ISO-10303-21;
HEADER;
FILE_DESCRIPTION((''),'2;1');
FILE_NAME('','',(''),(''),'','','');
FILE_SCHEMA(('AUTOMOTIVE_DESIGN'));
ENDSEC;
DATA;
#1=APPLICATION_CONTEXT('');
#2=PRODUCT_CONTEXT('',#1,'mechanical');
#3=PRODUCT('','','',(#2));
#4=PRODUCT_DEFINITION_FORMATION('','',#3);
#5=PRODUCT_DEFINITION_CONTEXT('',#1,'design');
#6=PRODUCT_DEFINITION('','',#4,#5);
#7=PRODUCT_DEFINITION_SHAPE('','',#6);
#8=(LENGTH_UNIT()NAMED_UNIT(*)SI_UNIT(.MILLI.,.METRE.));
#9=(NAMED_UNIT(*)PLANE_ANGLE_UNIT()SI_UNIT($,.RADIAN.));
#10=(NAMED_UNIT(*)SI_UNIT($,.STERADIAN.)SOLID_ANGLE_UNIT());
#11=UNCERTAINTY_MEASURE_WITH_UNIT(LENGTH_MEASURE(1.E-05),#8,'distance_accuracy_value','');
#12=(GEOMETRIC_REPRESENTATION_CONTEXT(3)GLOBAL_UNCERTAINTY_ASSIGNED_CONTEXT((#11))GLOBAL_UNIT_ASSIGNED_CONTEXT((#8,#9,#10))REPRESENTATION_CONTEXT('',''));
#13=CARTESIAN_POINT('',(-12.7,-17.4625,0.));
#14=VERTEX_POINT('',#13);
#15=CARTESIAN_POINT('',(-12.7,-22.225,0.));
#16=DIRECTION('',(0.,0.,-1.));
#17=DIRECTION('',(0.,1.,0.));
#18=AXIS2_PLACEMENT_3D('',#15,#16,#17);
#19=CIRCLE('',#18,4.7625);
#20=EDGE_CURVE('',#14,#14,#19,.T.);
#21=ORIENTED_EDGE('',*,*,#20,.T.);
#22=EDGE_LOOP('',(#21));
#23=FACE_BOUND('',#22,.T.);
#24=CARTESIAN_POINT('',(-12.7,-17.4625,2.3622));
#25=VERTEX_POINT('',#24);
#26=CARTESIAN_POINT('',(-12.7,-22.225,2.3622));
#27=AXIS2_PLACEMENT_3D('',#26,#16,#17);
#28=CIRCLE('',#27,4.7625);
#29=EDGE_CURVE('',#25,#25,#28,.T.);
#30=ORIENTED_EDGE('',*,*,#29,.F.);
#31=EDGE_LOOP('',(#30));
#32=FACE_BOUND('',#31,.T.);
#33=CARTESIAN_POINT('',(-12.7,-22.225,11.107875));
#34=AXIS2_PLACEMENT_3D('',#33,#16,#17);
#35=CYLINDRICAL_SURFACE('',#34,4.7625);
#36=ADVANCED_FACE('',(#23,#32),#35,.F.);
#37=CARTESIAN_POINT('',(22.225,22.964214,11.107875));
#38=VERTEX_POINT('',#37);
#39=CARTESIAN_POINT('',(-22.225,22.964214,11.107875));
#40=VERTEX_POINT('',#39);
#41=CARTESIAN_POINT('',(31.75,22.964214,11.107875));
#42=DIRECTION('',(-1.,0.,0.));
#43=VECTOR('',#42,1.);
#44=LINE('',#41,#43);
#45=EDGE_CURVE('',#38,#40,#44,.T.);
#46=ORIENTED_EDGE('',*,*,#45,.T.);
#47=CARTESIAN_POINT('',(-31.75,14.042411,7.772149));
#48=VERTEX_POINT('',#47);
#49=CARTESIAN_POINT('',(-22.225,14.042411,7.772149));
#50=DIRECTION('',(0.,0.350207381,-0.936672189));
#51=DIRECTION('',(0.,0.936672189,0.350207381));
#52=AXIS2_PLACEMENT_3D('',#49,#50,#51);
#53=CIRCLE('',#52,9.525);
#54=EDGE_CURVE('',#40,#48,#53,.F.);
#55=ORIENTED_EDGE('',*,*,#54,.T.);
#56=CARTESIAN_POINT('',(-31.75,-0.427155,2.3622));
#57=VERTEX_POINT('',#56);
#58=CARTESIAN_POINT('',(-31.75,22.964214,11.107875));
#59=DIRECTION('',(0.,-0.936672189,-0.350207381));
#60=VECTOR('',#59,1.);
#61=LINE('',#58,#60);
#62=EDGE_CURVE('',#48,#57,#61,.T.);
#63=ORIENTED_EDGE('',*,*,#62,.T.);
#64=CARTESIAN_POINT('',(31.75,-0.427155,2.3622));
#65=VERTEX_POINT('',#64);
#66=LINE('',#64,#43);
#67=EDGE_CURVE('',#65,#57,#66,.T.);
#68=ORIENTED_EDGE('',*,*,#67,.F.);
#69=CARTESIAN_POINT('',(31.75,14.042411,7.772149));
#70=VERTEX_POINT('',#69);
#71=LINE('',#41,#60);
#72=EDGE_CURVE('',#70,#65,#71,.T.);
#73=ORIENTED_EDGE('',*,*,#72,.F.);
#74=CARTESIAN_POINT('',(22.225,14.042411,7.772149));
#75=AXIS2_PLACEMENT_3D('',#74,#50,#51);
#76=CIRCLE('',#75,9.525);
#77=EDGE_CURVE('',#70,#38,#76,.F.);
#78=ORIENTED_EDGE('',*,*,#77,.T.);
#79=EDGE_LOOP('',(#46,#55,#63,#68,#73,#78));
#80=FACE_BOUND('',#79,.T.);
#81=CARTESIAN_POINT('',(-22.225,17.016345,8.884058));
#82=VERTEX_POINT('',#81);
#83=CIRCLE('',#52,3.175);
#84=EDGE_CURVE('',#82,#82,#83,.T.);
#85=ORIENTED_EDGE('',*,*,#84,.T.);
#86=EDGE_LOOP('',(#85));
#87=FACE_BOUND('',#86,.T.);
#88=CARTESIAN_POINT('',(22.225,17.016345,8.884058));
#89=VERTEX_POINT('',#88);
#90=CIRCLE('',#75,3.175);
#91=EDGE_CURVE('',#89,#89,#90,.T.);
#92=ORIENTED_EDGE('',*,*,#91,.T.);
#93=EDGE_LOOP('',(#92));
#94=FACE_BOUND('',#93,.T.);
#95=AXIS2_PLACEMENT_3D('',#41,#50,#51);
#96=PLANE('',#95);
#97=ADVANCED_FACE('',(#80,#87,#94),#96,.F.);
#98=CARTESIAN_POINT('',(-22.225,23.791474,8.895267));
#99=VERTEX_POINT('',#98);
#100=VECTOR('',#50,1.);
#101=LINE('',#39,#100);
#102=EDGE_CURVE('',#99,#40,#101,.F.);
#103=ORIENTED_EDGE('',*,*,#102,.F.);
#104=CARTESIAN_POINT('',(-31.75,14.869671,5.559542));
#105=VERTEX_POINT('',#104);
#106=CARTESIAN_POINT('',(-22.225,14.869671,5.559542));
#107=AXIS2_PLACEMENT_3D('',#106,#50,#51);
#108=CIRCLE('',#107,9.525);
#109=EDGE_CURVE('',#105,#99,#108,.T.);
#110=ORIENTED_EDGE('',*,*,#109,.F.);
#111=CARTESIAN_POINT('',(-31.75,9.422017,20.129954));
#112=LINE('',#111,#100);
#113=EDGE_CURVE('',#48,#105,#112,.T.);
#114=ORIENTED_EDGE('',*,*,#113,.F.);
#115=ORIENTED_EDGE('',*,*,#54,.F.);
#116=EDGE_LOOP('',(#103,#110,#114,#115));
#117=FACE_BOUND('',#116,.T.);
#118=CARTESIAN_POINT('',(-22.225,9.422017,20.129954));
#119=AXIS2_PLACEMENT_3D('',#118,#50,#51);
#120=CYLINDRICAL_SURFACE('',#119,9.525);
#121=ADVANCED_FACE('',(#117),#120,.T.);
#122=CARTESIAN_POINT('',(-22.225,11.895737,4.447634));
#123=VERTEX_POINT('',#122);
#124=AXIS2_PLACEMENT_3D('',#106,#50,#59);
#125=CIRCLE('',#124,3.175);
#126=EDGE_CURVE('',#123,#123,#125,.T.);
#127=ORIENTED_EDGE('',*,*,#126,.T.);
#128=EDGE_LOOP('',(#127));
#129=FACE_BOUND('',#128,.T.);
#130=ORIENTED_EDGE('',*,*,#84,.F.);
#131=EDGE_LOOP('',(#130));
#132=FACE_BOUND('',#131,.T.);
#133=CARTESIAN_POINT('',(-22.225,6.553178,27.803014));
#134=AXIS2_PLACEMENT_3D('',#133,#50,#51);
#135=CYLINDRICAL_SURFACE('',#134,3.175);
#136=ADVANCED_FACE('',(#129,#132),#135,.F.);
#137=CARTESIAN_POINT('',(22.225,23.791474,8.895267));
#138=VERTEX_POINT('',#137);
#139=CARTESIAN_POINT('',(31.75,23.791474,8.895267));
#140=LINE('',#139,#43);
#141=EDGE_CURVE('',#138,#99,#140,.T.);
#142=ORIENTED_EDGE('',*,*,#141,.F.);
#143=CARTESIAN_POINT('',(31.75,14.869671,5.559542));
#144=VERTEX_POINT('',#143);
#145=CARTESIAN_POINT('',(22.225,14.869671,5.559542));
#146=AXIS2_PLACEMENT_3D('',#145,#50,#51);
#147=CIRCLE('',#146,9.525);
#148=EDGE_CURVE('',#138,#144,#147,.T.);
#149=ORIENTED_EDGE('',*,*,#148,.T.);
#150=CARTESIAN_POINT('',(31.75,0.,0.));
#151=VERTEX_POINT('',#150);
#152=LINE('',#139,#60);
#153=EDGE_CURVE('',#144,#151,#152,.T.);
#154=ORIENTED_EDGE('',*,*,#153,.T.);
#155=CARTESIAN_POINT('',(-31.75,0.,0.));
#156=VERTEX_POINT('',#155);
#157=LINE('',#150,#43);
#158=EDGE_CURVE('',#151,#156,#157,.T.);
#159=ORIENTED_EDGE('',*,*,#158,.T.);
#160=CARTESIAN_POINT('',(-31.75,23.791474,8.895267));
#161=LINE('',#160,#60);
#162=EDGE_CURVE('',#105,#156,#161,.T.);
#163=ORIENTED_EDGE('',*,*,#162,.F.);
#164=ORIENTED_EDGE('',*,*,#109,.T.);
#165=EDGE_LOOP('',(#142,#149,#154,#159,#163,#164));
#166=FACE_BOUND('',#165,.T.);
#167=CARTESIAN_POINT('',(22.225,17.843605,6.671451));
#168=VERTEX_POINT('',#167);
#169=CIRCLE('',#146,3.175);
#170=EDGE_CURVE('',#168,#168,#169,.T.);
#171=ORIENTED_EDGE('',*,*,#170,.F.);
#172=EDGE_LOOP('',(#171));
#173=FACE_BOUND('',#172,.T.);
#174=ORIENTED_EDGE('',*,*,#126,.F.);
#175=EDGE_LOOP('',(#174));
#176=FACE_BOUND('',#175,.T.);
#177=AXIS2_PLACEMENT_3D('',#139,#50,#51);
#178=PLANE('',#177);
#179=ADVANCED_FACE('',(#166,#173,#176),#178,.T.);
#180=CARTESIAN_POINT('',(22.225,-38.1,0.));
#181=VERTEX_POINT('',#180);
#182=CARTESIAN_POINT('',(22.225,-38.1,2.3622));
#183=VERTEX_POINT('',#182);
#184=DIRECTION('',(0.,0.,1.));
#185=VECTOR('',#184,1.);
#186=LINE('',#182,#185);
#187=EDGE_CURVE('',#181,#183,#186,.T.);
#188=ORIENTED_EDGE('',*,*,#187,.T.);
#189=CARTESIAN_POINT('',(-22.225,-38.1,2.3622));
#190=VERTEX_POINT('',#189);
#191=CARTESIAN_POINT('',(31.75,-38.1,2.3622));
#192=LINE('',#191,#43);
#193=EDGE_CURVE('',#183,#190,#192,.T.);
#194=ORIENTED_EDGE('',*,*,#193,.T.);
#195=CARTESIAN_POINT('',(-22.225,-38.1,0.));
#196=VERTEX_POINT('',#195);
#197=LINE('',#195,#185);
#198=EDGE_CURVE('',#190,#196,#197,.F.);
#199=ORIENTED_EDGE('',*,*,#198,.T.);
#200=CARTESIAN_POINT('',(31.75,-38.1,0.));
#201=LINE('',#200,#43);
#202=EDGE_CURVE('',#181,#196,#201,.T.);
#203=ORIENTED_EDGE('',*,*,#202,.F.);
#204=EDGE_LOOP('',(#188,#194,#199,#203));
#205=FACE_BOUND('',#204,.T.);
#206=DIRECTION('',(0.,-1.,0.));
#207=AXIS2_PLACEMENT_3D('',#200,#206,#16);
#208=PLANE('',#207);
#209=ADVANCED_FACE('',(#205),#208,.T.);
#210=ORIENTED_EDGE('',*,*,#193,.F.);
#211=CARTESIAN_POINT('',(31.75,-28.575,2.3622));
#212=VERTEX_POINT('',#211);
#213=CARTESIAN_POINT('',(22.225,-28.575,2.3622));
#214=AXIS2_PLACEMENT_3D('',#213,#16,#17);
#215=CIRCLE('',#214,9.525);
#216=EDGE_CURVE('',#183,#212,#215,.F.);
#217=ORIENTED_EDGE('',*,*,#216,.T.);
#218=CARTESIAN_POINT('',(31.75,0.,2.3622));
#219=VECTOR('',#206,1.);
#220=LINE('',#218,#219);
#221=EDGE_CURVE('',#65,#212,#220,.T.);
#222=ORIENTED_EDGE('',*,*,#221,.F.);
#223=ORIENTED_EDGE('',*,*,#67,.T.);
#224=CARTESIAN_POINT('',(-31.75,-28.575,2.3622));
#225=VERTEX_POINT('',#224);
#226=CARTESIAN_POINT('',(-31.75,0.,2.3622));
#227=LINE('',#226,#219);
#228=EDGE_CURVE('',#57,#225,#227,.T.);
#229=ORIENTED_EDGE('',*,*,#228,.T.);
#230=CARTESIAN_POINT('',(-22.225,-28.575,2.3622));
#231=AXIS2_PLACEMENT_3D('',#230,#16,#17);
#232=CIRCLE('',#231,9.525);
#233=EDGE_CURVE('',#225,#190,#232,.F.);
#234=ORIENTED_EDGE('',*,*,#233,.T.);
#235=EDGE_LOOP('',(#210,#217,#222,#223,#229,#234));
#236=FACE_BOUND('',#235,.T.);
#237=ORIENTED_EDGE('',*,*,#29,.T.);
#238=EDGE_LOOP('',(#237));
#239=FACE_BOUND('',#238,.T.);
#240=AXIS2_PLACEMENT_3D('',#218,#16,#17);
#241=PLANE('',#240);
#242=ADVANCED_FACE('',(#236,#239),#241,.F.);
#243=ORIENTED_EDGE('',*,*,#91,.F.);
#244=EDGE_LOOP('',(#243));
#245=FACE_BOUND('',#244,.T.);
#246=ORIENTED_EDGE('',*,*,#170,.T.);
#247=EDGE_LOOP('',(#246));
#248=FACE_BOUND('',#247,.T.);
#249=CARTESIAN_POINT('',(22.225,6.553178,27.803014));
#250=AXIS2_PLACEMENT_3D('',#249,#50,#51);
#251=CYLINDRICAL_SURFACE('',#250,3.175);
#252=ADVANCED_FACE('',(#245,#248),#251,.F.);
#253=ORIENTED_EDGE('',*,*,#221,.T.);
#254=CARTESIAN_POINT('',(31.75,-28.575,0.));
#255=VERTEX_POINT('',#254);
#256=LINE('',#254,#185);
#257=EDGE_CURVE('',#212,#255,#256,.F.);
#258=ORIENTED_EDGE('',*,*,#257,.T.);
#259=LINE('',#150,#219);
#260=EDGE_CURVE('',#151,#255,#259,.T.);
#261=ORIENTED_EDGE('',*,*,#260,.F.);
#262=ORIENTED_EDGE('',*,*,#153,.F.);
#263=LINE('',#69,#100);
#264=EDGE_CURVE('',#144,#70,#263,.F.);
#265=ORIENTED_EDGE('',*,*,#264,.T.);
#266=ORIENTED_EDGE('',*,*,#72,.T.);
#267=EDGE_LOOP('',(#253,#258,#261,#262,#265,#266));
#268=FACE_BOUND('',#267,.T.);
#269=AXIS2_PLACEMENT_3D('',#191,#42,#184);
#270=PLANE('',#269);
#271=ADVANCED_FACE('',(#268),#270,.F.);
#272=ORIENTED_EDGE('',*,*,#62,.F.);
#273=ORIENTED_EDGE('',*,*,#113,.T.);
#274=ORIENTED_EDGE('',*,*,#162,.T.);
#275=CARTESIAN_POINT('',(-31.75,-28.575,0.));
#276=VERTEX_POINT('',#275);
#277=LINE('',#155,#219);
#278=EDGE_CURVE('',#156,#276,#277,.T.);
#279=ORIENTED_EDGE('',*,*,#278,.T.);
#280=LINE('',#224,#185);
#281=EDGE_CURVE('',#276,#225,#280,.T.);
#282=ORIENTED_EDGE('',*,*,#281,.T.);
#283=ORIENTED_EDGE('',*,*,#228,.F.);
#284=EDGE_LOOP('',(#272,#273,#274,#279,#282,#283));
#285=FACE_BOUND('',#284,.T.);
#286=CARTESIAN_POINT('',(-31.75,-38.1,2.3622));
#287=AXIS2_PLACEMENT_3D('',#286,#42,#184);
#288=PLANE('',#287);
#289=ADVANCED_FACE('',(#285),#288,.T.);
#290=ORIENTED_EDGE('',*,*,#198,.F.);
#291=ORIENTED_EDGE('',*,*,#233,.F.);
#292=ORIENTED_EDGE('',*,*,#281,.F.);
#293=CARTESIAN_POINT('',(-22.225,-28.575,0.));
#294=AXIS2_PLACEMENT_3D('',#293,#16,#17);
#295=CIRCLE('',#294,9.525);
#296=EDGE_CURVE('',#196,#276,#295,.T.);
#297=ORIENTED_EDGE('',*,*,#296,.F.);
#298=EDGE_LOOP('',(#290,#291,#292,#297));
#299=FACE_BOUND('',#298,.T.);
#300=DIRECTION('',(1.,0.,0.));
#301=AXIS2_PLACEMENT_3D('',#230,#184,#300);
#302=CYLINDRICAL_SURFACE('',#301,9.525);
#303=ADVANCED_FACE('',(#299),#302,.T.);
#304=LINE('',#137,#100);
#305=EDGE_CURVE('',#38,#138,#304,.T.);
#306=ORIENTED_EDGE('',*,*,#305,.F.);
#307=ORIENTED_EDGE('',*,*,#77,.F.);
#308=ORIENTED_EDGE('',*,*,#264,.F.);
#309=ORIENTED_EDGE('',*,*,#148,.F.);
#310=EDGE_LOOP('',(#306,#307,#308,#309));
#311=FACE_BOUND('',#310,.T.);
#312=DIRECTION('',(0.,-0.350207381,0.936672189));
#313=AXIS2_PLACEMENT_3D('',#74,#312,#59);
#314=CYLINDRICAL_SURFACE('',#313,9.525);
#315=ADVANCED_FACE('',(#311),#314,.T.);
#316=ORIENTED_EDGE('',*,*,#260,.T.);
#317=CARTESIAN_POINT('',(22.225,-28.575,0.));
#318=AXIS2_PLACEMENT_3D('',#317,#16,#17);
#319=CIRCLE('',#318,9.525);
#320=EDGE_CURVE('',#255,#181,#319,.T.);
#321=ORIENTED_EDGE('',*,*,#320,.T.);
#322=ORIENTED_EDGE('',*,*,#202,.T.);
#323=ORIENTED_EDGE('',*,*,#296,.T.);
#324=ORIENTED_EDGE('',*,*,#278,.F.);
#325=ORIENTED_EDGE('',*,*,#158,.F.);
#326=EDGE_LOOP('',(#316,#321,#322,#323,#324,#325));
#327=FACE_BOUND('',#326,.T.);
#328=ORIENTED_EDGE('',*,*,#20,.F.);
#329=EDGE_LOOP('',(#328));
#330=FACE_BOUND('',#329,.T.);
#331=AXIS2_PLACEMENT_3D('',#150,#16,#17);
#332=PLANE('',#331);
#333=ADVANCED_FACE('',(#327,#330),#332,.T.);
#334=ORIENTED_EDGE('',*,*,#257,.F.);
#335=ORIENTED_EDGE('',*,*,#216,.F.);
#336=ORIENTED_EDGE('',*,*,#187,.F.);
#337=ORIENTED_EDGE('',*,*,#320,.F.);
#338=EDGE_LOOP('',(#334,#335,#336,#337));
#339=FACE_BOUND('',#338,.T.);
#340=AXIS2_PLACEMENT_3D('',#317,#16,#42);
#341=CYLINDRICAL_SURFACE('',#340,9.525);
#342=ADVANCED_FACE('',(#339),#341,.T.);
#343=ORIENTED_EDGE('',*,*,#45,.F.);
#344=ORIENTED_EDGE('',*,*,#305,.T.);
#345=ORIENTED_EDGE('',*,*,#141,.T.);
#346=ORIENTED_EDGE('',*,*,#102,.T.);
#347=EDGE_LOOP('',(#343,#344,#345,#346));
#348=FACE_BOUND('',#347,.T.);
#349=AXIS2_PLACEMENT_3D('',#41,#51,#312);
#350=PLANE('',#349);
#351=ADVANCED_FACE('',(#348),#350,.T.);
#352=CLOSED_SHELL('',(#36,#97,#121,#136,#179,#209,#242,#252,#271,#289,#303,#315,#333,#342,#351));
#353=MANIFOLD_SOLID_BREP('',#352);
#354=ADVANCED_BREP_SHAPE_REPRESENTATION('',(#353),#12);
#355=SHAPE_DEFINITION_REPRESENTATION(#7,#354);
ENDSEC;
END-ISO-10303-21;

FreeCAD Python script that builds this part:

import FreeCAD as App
import Part
import Sketcher
from FreeCAD import Vector
Q = App.Units.Quantity


def edges_at(feature, points):
    """Names of the edges that pass closest to the given points."""
    edges = feature.Shape.Edges
    near = lambda p: min(range(len(edges)), key=lambda i: edges[i].distToShape(Part.Vertex(*p))[0])
    return sorted({f"Edge{near(p) + 1}" for p in points})

doc = App.newDocument("Part")
params = doc.addObject("Spreadsheet::Sheet", "Params")
for row, (alias, value) in enumerate([
    ("sketch1_length", "1 in"),
    ("sketch1_width", "1.5 in"),
    ("sketch1_height", "0.093 in"),
    ("sketch1_length2", "0.093 in"),
    ("pad1_length", "2.5 in"),
    ("sketch2_diameter", "0.375 in"),
    ("sketch3_diameter", "0.25 in"),
    ("fillet_radius", "0.375 in"),
], start=1):
    params.set(f"A{row}", alias)
    params.set(f"B{row}", "=" + value)
    params.setAlias(f"B{row}", alias)

body = doc.addObject("PartDesign::Body", "Body")

sketch1 = doc.addObject("Sketcher::SketchObject", "Sketch")
body.addObject(sketch1)
sketch1.AttachmentSupport = (doc.YZ_Plane, [""])
sketch1.MapMode = "FlatFace"
sketch1.addGeometry(Part.LineSegment(Vector(0, 0, 0), Vector(23.8, 8.9, 0)), False)
sketch1.addGeometry(Part.LineSegment(Vector(23.8, 8.9, 0), Vector(23, 11.1, 0)), False)
sketch1.addGeometry(Part.LineSegment(Vector(23, 11.1, 0), Vector(-0.4, 2.4, 0)), False)
sketch1.addGeometry(Part.LineSegment(Vector(-0.4, 2.4, 0), Vector(-38.1, 2.4, 0)), False)
sketch1.addGeometry(Part.LineSegment(Vector(-38.1, 2.4, 0), Vector(-38.1, 0, 0)), False)
sketch1.addGeometry(Part.LineSegment(Vector(-38.1, 0, 0), Vector(0, 0, 0)), False)
sketch1.addConstraint(Sketcher.Constraint("Coincident", 0, 2, 1, 1))
sketch1.addConstraint(Sketcher.Constraint("Coincident", 1, 2, 2, 1))
sketch1.addConstraint(Sketcher.Constraint("Coincident", 2, 2, 3, 1))
sketch1.addConstraint(Sketcher.Constraint("Coincident", 3, 2, 4, 1))
sketch1.addConstraint(Sketcher.Constraint("Coincident", 4, 2, 5, 1))
sketch1.addConstraint(Sketcher.Constraint("Coincident", 5, 2, 0, 1))
sketch1.addConstraint(Sketcher.Constraint("Horizontal", 3))
sketch1.addConstraint(Sketcher.Constraint("Vertical", 4))
sketch1.addConstraint(Sketcher.Constraint("Horizontal", 5))
sketch1.addConstraint(Sketcher.Constraint("Coincident", 5, 2, -1, 1))
sketch1.addConstraint(Sketcher.Constraint("Perpendicular", 0, 1))
sketch1.addConstraint(Sketcher.Constraint("Perpendicular", 1, 2))
sketch1.addConstraint(Sketcher.Constraint("Distance", 0, Q("1 in")))
sketch1.addConstraint(Sketcher.Constraint("DistanceX", 5, 1, 5, 2, Q("1.5 in")))
sketch1.addConstraint(Sketcher.Constraint("Angle", 0, Q("20.5 deg")))
sketch1.addConstraint(Sketcher.Constraint("DistanceY", 4, 2, 4, 1, Q("0.093 in")))
sketch1.addConstraint(Sketcher.Constraint("Distance", 1, Q("0.093 in")))
sketch1.setExpression("Constraints[12]", "Params.sketch1_length")
sketch1.setExpression("Constraints[13]", "Params.sketch1_width")
sketch1.setExpression("Constraints[15]", "Params.sketch1_height")
sketch1.setExpression("Constraints[16]", "Params.sketch1_length2")
pad1 = doc.addObject("PartDesign::Pad", "Pad")
body.addObject(pad1)
pad1.Profile = sketch1
pad1.setExpression("Length", "Params.pad1_length")
pad1.Midplane = True

sketch2 = doc.addObject("Sketcher::SketchObject", "Sketch001")
body.addObject(sketch2)
sketch2.AttachmentSupport = (doc.XY_Plane, [""])
sketch2.MapMode = "FlatFace"
sketch2.addGeometry(Part.Circle(Vector(-12.7, -22.2, 0), Vector(0, 0, 1), 4.8), False)
sketch2.addConstraint(Sketcher.Constraint("Diameter", 0, Q("0.375 in")))
sketch2.addConstraint(Sketcher.Constraint("DistanceX", 0, 3, -1, 1, Q("0.5 in")))
sketch2.addConstraint(Sketcher.Constraint("DistanceY", 0, 3, -1, 1, Q("0.875 in")))
sketch2.setExpression("Constraints[0]", "Params.sketch2_diameter")
pocket1 = doc.addObject("PartDesign::Pocket", "Pocket")
body.addObject(pocket1)
pocket1.Profile = sketch2
pocket1.Type = "ThroughAll"
pocket1.Reversed = True

sketch3 = doc.addObject("Sketcher::SketchObject", "Sketch002")
body.addObject(sketch3)
sketch3.Placement = App.Placement(Vector(0, 0, 0), App.Rotation(Vector(-1, 0, 0), Vector(0, 0.936672189, 0.350207381), Vector(0, 0.350207381, -0.936672189), "ZXY"))
sketch3.addGeometry(Part.Circle(Vector(-22.2, 15.9, 0), Vector(0, 0, 1), 3.2), False)
sketch3.addGeometry(Part.Circle(Vector(22.2, 15.9, 0), Vector(0, 0, 1), 3.2), False)
sketch3.addConstraint(Sketcher.Constraint("Equal", 0, 1))
sketch3.addConstraint(Sketcher.Constraint("Symmetric", 0, 3, 1, 3, -2))
sketch3.addConstraint(Sketcher.Constraint("Diameter", 0, Q("0.25 in")))
sketch3.addConstraint(Sketcher.Constraint("DistanceX", 0, 3, 1, 3, Q("1.75 in")))
sketch3.addConstraint(Sketcher.Constraint("DistanceY", -1, 1, 0, 3, Q("0.625 in")))
sketch3.setExpression("Constraints[2]", "Params.sketch3_diameter")
pocket2 = doc.addObject("PartDesign::Pocket", "Pocket001")
body.addObject(pocket2)
pocket2.Profile = sketch3
pocket2.Type = "ThroughAll"
doc.recompute()

fillet = doc.addObject("PartDesign::Fillet", "Fillet")
body.addObject(fillet)
fillet.Base = (pocket2, edges_at(pocket2, [
    (31.75, 23.378, 10.002),
    (-31.75, 23.378, 10.002),
    (-31.75, -38.1, 1.181),
    (31.75, -38.1, 1.181),
]))
fillet.setExpression("Radius", "Params.fillet_radius")

doc.recompute()
